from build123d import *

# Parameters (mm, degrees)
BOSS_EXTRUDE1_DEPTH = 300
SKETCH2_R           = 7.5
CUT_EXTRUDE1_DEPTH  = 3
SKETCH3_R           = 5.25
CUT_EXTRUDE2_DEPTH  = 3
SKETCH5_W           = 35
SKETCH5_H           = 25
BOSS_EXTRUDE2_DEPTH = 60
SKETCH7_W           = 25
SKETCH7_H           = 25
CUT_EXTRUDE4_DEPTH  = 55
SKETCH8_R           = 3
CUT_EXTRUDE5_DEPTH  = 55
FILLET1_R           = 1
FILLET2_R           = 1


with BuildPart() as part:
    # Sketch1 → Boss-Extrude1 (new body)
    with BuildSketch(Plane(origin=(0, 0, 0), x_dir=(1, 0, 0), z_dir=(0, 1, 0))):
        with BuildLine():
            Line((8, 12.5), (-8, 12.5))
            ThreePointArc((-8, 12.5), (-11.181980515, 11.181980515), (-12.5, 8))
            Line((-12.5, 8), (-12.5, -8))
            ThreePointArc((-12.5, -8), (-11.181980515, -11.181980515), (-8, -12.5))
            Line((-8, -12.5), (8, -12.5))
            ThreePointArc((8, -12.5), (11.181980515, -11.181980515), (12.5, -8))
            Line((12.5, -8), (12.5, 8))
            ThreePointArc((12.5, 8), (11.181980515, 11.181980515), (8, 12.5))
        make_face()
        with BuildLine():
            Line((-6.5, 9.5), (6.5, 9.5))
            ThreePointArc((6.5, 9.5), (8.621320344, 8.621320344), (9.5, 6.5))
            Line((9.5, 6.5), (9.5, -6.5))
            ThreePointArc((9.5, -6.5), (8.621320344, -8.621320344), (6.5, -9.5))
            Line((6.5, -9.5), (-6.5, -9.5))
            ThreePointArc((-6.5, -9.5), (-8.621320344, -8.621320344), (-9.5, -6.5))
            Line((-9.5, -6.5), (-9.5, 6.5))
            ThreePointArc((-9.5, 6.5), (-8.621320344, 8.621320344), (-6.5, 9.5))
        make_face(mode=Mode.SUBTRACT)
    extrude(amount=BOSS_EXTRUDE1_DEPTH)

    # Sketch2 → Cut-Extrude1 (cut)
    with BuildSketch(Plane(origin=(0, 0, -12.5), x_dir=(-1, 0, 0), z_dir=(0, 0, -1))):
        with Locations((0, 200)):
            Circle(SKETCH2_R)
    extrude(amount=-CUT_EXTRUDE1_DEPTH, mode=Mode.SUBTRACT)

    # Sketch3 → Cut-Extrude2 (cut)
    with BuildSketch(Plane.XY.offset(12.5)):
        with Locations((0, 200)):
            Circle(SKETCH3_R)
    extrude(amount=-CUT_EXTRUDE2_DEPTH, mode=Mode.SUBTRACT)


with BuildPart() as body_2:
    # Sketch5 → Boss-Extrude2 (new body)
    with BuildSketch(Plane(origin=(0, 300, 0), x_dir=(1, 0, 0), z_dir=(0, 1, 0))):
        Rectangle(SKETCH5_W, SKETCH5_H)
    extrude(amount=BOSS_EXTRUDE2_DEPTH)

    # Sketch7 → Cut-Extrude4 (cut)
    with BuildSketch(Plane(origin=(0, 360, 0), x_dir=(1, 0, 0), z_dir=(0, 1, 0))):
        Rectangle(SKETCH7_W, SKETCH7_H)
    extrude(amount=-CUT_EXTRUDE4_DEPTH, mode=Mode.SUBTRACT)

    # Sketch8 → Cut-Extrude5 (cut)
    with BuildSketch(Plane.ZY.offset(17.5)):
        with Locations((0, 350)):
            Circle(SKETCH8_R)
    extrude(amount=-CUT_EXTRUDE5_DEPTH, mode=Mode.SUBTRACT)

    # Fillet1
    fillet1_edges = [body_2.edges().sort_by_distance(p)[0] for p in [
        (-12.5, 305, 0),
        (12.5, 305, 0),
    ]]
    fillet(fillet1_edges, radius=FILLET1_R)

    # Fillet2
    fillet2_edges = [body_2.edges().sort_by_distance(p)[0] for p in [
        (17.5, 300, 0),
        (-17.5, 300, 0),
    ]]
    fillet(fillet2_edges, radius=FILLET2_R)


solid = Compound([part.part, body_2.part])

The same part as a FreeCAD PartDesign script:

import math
import FreeCAD as App
import Part
import Sketcher
from FreeCAD import Vector


def edges_at(feature, points):
    """Names of the edges that pass closest to the given points."""
    edges = feature.Shape.Edges
    near = lambda p: min(range(len(edges)), key=lambda i: edges[i].distToShape(Part.Vertex(*p))[0])
    return sorted({f"Edge{near(p) + 1}" for p in points})

doc = App.newDocument("Part")
params = doc.addObject("Spreadsheet::Sheet", "Params")
for row, (alias, value) in enumerate([
    ("sketch1_radius", "3 mm"),
    ("sketch1_radius2", "4.5 mm"),
    ("sketch1_width", "16 mm"),
    ("sketch1_width2", "13 mm"),
    ("pad1_length", "300 mm"),
    ("sketch2_diameter", "15 mm"),
    ("pocket1_length", "3 mm"),
    ("sketch3_diameter", "10.5 mm"),
    ("pocket2_length", "3 mm"),
    ("sketch4_width", "35 mm"),
    ("sketch4_height", "25 mm"),
    ("pad2_length", "60 mm"),
    ("sketch5_width", "25 mm"),
    ("pocket3_length", "55 mm"),
    ("sketch6_diameter", "6 mm"),
    ("pocket4_length", "55 mm"),
    ("fillet_radius", "1 mm"),
    ("fillet2_radius", "1 mm"),
], start=1):
    params.set(f"A{row}", alias)
    params.set(f"B{row}", "=" + value)
    params.setAlias(f"B{row}", alias)

body = doc.addObject("PartDesign::Body", "Body")

# Sketch on XZ plane
sketch1 = body.newObject("Sketcher::SketchObject", "Sketch")
sketch1.AttachmentSupport = (doc.getObject("XZ_Plane"), [""])
sketch1.MapMode = "FlatFace"
sketch1.addGeometry([
    Part.LineSegment(Vector(8, -12.5, 0), Vector(-8, -12.5, 0)),  # 0
    Part.ArcOfCircle(Part.Circle(Vector(-8, -8, 0), Vector(0, 0, 1), 4.5), math.radians(-180), math.radians(-90)),  # 1
    Part.LineSegment(Vector(-12.5, -8, 0), Vector(-12.5, 8, 0)),  # 2
    Part.ArcOfCircle(Part.Circle(Vector(-8, 8, 0), Vector(0, 0, 1), 4.5), math.radians(90), math.radians(180)),  # 3
    Part.LineSegment(Vector(-8, 12.5, 0), Vector(8, 12.5, 0)),  # 4
    Part.ArcOfCircle(Part.Circle(Vector(8, 8, 0), Vector(0, 0, 1), 4.5), math.radians(0), math.radians(90)),  # 5
    Part.LineSegment(Vector(12.5, 8, 0), Vector(12.5, -8, 0)),  # 6
    Part.ArcOfCircle(Part.Circle(Vector(8, -8, 0), Vector(0, 0, 1), 4.5), math.radians(-90), math.radians(0)),  # 7
    Part.ArcOfCircle(Part.Circle(Vector(-6.5, -6.5, 0), Vector(0, 0, 1), 3), math.radians(180), math.radians(270)),  # 8
    Part.LineSegment(Vector(-6.5, -9.5, 0), Vector(6.5, -9.5, 0)),  # 9
    Part.ArcOfCircle(Part.Circle(Vector(6.5, -6.5, 0), Vector(0, 0, 1), 3), math.radians(-90), math.radians(0)),  # 10
    Part.LineSegment(Vector(9.5, -6.5, 0), Vector(9.5, 6.5, 0)),  # 11
    Part.ArcOfCircle(Part.Circle(Vector(6.5, 6.5, 0), Vector(0, 0, 1), 3), math.radians(0), math.radians(90)),  # 12
    Part.LineSegment(Vector(6.5, 9.5, 0), Vector(-6.5, 9.5, 0)),  # 13
    Part.ArcOfCircle(Part.Circle(Vector(-6.5, 6.5, 0), Vector(0, 0, 1), 3), math.radians(90), math.radians(180)),  # 14
    Part.LineSegment(Vector(-9.5, 6.5, 0), Vector(-9.5, -6.5, 0)),  # 15
], False)
sketch1.addConstraint([
    Sketcher.Constraint("Tangent", 0, 2, 1, 2),
    Sketcher.Constraint("Tangent", 1, 1, 2, 1),
    Sketcher.Constraint("Tangent", 2, 2, 3, 2),
    Sketcher.Constraint("Tangent", 3, 1, 4, 1),
    Sketcher.Constraint("Tangent", 4, 2, 5, 2),
    Sketcher.Constraint("Tangent", 5, 1, 6, 1),
    Sketcher.Constraint("Tangent", 6, 2, 7, 2),
    Sketcher.Constraint("Tangent", 7, 1, 0, 1),
    Sketcher.Constraint("Tangent", 8, 2, 9, 1),
    Sketcher.Constraint("Tangent", 9, 2, 10, 1),
    Sketcher.Constraint("Tangent", 10, 2, 11, 1),
    Sketcher.Constraint("Tangent", 11, 2, 12, 1),
    Sketcher.Constraint("Tangent", 12, 2, 13, 1),
    Sketcher.Constraint("Tangent", 13, 2, 14, 1),
    Sketcher.Constraint("Tangent", 14, 2, 15, 1),
    Sketcher.Constraint("Tangent", 15, 2, 8, 1),
    Sketcher.Constraint("Horizontal", 0),
    Sketcher.Constraint("Vertical", 2),
    Sketcher.Constraint("Horizontal", 4),
    Sketcher.Constraint("Vertical", 6),
    Sketcher.Constraint("Horizontal", 9),
    Sketcher.Constraint("Vertical", 11),
    Sketcher.Constraint("Horizontal", 13),
    Sketcher.Constraint("Vertical", 15),
    Sketcher.Constraint("Equal", 1, 3),
    Sketcher.Constraint("Equal", 3, 5),
    Sketcher.Constraint("Equal", 5, 7),
    Sketcher.Constraint("Equal", 8, 10),
    Sketcher.Constraint("Equal", 10, 12),
    Sketcher.Constraint("Equal", 12, 14),
    Sketcher.Constraint("Symmetric", 1, 3, 5, 3, -1, 1),
    Sketcher.Constraint("Symmetric", 8, 3, 12, 3, -1, 1),
    Sketcher.Constraint("Equal", 4, 2),
    Sketcher.Constraint("Equal", 13, 11),
    Sketcher.Constraint("Radius", 8, 3.0),
    Sketcher.Constraint("Radius", 1, 4.5),
    Sketcher.Constraint("DistanceX", 0, 2, 0, 1, 16.0),
    Sketcher.Constraint("DistanceX", 9, 1, 9, 2, 13.0),
])
sketch1.setExpression("Constraints[34]", "Params.sketch1_radius")
sketch1.setExpression("Constraints[35]", "Params.sketch1_radius2")
sketch1.setExpression("Constraints[36]", "Params.sketch1_width")
sketch1.setExpression("Constraints[37]", "Params.sketch1_width2")
pad1 = body.newObject("PartDesign::Pad", "Pad")
pad1.Profile = sketch1
pad1.setExpression("Length", "Params.pad1_length")
pad1.Reversed = True

# Sketch on XY plane
sketch2 = body.newObject("Sketcher::SketchObject", "Sketch001")
sketch2.AttachmentSupport = (doc.getObject("XY_Plane"), [""])
sketch2.MapMode = "FlatFace"
sketch2.AttachmentOffset = App.Placement(Vector(0, 0, -12.5), App.Rotation())
sketch2.addGeometry(Part.Circle(Vector(0, 200, 0), Vector(0, 0, 1), 8), False)
sketch2.addConstraint([
    Sketcher.Constraint("PointOnObject", 0, 3, -2),
    Sketcher.Constraint("Diameter", 0, 15.0),
    Sketcher.Constraint("DistanceY", -1, 1, 0, 3, 200.0),
])
sketch2.setExpression("Constraints[1]", "Params.sketch2_diameter")
pocket1 = body.newObject("PartDesign::Pocket", "Pocket")
pocket1.Profile = sketch2
pocket1.setExpression("Length", "Params.pocket1_length")
pocket1.Reversed = True

# Sketch on XY plane
sketch3 = body.newObject("Sketcher::SketchObject", "Sketch002")
sketch3.AttachmentSupport = (doc.getObject("XY_Plane"), [""])
sketch3.MapMode = "FlatFace"
sketch3.AttachmentOffset = App.Placement(Vector(0, 0, 12.5), App.Rotation())
sketch3.addGeometry(Part.Circle(Vector(0, 200, 0), Vector(0, 0, 1), 5), False)
sketch3.addConstraint([
    Sketcher.Constraint("PointOnObject", 0, 3, -2),
    Sketcher.Constraint("Diameter", 0, 10.5),
    Sketcher.Constraint("DistanceY", -1, 1, 0, 3, 200.0),
])
sketch3.setExpression("Constraints[1]", "Params.sketch3_diameter")
pocket2 = body.newObject("PartDesign::Pocket", "Pocket001")
pocket2.Profile = sketch3
pocket2.setExpression("Length", "Params.pocket2_length")
body2 = doc.addObject("PartDesign::Body", "Body001")

# Sketch on XZ plane
sketch4 = body2.newObject("Sketcher::SketchObject", "Sketch003")
sketch4.AttachmentSupport = (doc.getObject("XZ_Plane001"), [""])
sketch4.MapMode = "FlatFace"
sketch4.AttachmentOffset = App.Placement(Vector(0, 0, -300), App.Rotation())
sketch4.addGeometry([
    Part.LineSegment(Vector(-18, -12, 0), Vector(-18, 12, 0)),
    Part.LineSegment(Vector(-18, 12, 0), Vector(18, 12, 0)),
    Part.LineSegment(Vector(18, 12, 0), Vector(18, -12, 0)),
    Part.LineSegment(Vector(18, -12, 0), Vector(-18, -12, 0)),
], False)
sketch4.addConstraint([
    Sketcher.Constraint("Coincident", 0, 2, 1, 1),
    Sketcher.Constraint("Coincident", 1, 2, 2, 1),
    Sketcher.Constraint("Coincident", 2, 2, 3, 1),
    Sketcher.Constraint("Coincident", 3, 2, 0, 1),
    Sketcher.Constraint("Vertical", 0),
    Sketcher.Constraint("Horizontal", 1),
    Sketcher.Constraint("Vertical", 2),
    Sketcher.Constraint("Horizontal", 3),
    Sketcher.Constraint("Symmetric", 0, 2, 2, 2, -1, 1),
    Sketcher.Constraint("DistanceX", 1, 1, 1, 2, 35.0),
    Sketcher.Constraint("DistanceY", 0, 1, 0, 2, 25.0),
])
sketch4.setExpression("Constraints[9]", "Params.sketch4_width")
sketch4.setExpression("Constraints[10]", "Params.sketch4_height")
pad2 = body2.newObject("PartDesign::Pad", "Pad001")
pad2.Profile = sketch4
pad2.setExpression("Length", "Params.pad2_length")
pad2.Reversed = True

# Sketch on XZ plane
sketch5 = body2.newObject("Sketcher::SketchObject", "Sketch004")
sketch5.AttachmentSupport = (doc.getObject("XZ_Plane001"), [""])
sketch5.MapMode = "FlatFace"
sketch5.AttachmentOffset = App.Placement(Vector(0, 0, -360), App.Rotation())
sketch5.addGeometry([
    Part.LineSegment(Vector(-12, -12, 0), Vector(-12, 12, 0)),
    Part.LineSegment(Vector(-12, 12, 0), Vector(12, 12, 0)),
    Part.LineSegment(Vector(12, 12, 0), Vector(12, -12, 0)),
    Part.LineSegment(Vector(12, -12, 0), Vector(-12, -12, 0)),
], False)
sketch5.addConstraint([
    Sketcher.Constraint("Coincident", 0, 2, 1, 1),
    Sketcher.Constraint("Coincident", 1, 2, 2, 1),
    Sketcher.Constraint("Coincident", 2, 2, 3, 1),
    Sketcher.Constraint("Coincident", 3, 2, 0, 1),
    Sketcher.Constraint("Vertical", 0),
    Sketcher.Constraint("Horizontal", 1),
    Sketcher.Constraint("Vertical", 2),
    Sketcher.Constraint("Horizontal", 3),
    Sketcher.Constraint("Symmetric", 0, 2, 2, 2, -1, 1),
    Sketcher.Constraint("Equal", 3, 0),
    Sketcher.Constraint("DistanceX", 1, 1, 1, 2, 25.0),
])
sketch5.setExpression("Constraints[10]", "Params.sketch5_width")
pocket3 = body2.newObject("PartDesign::Pocket", "Pocket002")
pocket3.Profile = sketch5
pocket3.setExpression("Length", "Params.pocket3_length")
pocket3.Reversed = True

# Sketch on YZ plane
sketch6 = body2.newObject("Sketcher::SketchObject", "Sketch005")
sketch6.AttachmentSupport = (doc.getObject("YZ_Plane001"), [""])
sketch6.MapMode = "FlatFace"
sketch6.AttachmentOffset = App.Placement(Vector(0, 0, -17.5), App.Rotation())
sketch6.addGeometry(Part.Circle(Vector(350, 0, 0), Vector(0, 0, 1), 3), False)
sketch6.addConstraint([
    Sketcher.Constraint("PointOnObject", 0, 3, -1),
    Sketcher.Constraint("Diameter", 0, 6.0),
    Sketcher.Constraint("DistanceX", -1, 1, 0, 3, 350.0),
])
sketch6.setExpression("Constraints[1]", "Params.sketch6_diameter")
pocket4 = body2.newObject("PartDesign::Pocket", "Pocket003")
pocket4.Profile = sketch6
pocket4.setExpression("Length", "Params.pocket4_length")
pocket4.Reversed = True
doc.recompute()

fillet = body2.newObject("PartDesign::Fillet", "Fillet")
fillet.Base = (pocket4, edges_at(pocket4, [(-12.5, 305, 0), (12.5, 305, 0)]))
fillet.setExpression("Radius", "Params.fillet_radius")
doc.recompute()

fillet2 = body2.newObject("PartDesign::Fillet", "Fillet001")
fillet2.Base = (fillet, edges_at(fillet, [(17.5, 300, 0), (-17.5, 300, 0)]))
fillet2.setExpression("Radius", "Params.fillet2_radius")

doc.recompute()
